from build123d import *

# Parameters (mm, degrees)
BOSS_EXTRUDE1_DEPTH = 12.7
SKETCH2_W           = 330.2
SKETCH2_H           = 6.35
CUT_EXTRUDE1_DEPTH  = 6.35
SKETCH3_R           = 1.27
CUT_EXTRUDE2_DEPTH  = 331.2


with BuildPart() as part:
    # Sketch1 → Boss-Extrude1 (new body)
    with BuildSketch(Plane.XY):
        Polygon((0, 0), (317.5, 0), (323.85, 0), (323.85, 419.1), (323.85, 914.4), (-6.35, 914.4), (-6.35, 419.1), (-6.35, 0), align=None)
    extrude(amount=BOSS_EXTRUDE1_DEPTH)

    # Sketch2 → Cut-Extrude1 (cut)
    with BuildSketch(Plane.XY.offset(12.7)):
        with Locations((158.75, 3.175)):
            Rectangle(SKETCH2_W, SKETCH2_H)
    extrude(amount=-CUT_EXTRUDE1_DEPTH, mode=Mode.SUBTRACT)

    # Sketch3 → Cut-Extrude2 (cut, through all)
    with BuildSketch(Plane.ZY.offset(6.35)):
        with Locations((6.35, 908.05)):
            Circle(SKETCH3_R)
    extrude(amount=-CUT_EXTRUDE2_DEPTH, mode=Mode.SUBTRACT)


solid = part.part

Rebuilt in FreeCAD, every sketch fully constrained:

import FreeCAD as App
import Part
import Sketcher
Q = App.Units.Quantity


def add_polygon(sketch, points):
    """Adds a closed chain of lines whose ends are joined by coincident constraints."""
    first, n = sketch.GeometryCount, len(points)
    for a, b in zip(points, points[1:] + points[:1]):
        sketch.addGeometry(Part.LineSegment(App.Vector(*a, 0), App.Vector(*b, 0)), False)
    for i in range(n):
        sketch.addConstraint(Sketcher.Constraint("Coincident", first + i, 2, first + (i + 1) % n, 1))

doc = App.newDocument("Part")
params = doc.addObject("Spreadsheet::Sheet", "Params")
for row, (alias, value) in enumerate([
    ("sketch1_width", "13 in"),
    ("sketch1_height", "36 in"),
    ("pad1_length", "0.5 in"),
    ("sketch2_width", "13 in"),
    ("sketch2_height", "0.25 in"),
    ("pocket1_length", "0.25 in"),
    ("sketch3_diameter", "0.1 in"),
], start=1):
    params.set(f"A{row}", alias)
    params.set(f"B{row}", "=" + value)
    params.setAlias(f"B{row}", alias)

body = doc.addObject("PartDesign::Body", "Body")

# Sketch on XY plane
sketch1 = doc.addObject("Sketcher::SketchObject", "Sketch")
body.addObject(sketch1)
sketch1.AttachmentSupport = (doc.XY_Plane, [""])
sketch1.MapMode = "FlatFace"
add_polygon(sketch1, [(324, 0), (324, 914), (-6, 914), (-6, 0)])  # lines 0-3
sketch1.addConstraint(Sketcher.Constraint("Vertical", 0))
sketch1.addConstraint(Sketcher.Constraint("Horizontal", 1))
sketch1.addConstraint(Sketcher.Constraint("Vertical", 2))
sketch1.addConstraint(Sketcher.Constraint("Horizontal", 3))
sketch1.addConstraint(Sketcher.Constraint("PointOnObject", 2, 2, -1))
sketch1.addConstraint(Sketcher.Constraint("DistanceX", 1, 2, 1, 1, Q("13 in")))
sketch1.addConstraint(Sketcher.Constraint("DistanceY", 0, 1, 0, 2, Q("36 in")))
sketch1.addConstraint(Sketcher.Constraint("DistanceX", -1, 1, 0, 2, Q("12.75 in")))
sketch1.setExpression("Constraints[9]", "Params.sketch1_width")
sketch1.setExpression("Constraints[10]", "Params.sketch1_height")
pad1 = doc.addObject("PartDesign::Pad", "Pad")
body.addObject(pad1)
pad1.Profile = sketch1
pad1.setExpression("Length", "Params.pad1_length")

# Sketch on XY plane
sketch2 = doc.addObject("Sketcher::SketchObject", "Sketch001")
body.addObject(sketch2)
sketch2.AttachmentSupport = (doc.XY_Plane, [""])
sketch2.MapMode = "FlatFace"
sketch2.AttachmentOffset = App.Placement(App.Vector(0, 0, 0.5 * 25.4), App.Rotation())
add_polygon(sketch2, [(-6, 6), (-6, 0), (324, 0), (324, 6)])  # lines 0-3
sketch2.addConstraint(Sketcher.Constraint("Vertical", 0))
sketch2.addConstraint(Sketcher.Constraint("Horizontal", 1))
sketch2.addConstraint(Sketcher.Constraint("Vertical", 2))
sketch2.addConstraint(Sketcher.Constraint("Horizontal", 3))
sketch2.addConstraint(Sketcher.Constraint("PointOnObject", 0, 2, -1))
sketch2.addConstraint(Sketcher.Constraint("DistanceX", 1, 1, 1, 2, Q("13 in")))
sketch2.addConstraint(Sketcher.Constraint("DistanceY", 0, 2, 0, 1, Q("0.25 in")))
sketch2.addConstraint(Sketcher.Constraint("DistanceX", 0, 2, -1, 1, Q("0.25 in")))
sketch2.setExpression("Constraints[9]", "Params.sketch2_width")
sketch2.setExpression("Constraints[10]", "Params.sketch2_height")
pocket1 = doc.addObject("PartDesign::Pocket", "Pocket")
body.addObject(pocket1)
pocket1.Profile = sketch2
pocket1.setExpression("Length", "Params.pocket1_length")

# Sketch on YZ plane
sketch3 = doc.addObject("Sketcher::SketchObject", "Sketch002")
body.addObject(sketch3)
sketch3.AttachmentSupport = (doc.YZ_Plane, [""])
sketch3.MapMode = "FlatFace"
sketch3.AttachmentOffset = App.Placement(App.Vector(0, 0, -0.25 * 25.4), App.Rotation())
sketch3.addGeometry(Part.Circle(App.Vector(908, 6.3, 0), App.Vector(0, 0, 1), 1.3), False)
sketch3.addConstraint(Sketcher.Constraint("Diameter", 0, Q("0.1 in")))
sketch3.addConstraint(Sketcher.Constraint("DistanceX", -1, 1, 0, 3, Q("35.75 in")))
sketch3.addConstraint(Sketcher.Constraint("DistanceY", -1, 1, 0, 3, Q("0.25 in")))
sketch3.setExpression("Constraints[0]", "Params.sketch3_diameter")
pocket2 = doc.addObject("PartDesign::Pocket", "Pocket001")
body.addObject(pocket2)
pocket2.Profile = sketch3
pocket2.Type = "ThroughAll"
pocket2.Reversed = True

doc.recompute()
